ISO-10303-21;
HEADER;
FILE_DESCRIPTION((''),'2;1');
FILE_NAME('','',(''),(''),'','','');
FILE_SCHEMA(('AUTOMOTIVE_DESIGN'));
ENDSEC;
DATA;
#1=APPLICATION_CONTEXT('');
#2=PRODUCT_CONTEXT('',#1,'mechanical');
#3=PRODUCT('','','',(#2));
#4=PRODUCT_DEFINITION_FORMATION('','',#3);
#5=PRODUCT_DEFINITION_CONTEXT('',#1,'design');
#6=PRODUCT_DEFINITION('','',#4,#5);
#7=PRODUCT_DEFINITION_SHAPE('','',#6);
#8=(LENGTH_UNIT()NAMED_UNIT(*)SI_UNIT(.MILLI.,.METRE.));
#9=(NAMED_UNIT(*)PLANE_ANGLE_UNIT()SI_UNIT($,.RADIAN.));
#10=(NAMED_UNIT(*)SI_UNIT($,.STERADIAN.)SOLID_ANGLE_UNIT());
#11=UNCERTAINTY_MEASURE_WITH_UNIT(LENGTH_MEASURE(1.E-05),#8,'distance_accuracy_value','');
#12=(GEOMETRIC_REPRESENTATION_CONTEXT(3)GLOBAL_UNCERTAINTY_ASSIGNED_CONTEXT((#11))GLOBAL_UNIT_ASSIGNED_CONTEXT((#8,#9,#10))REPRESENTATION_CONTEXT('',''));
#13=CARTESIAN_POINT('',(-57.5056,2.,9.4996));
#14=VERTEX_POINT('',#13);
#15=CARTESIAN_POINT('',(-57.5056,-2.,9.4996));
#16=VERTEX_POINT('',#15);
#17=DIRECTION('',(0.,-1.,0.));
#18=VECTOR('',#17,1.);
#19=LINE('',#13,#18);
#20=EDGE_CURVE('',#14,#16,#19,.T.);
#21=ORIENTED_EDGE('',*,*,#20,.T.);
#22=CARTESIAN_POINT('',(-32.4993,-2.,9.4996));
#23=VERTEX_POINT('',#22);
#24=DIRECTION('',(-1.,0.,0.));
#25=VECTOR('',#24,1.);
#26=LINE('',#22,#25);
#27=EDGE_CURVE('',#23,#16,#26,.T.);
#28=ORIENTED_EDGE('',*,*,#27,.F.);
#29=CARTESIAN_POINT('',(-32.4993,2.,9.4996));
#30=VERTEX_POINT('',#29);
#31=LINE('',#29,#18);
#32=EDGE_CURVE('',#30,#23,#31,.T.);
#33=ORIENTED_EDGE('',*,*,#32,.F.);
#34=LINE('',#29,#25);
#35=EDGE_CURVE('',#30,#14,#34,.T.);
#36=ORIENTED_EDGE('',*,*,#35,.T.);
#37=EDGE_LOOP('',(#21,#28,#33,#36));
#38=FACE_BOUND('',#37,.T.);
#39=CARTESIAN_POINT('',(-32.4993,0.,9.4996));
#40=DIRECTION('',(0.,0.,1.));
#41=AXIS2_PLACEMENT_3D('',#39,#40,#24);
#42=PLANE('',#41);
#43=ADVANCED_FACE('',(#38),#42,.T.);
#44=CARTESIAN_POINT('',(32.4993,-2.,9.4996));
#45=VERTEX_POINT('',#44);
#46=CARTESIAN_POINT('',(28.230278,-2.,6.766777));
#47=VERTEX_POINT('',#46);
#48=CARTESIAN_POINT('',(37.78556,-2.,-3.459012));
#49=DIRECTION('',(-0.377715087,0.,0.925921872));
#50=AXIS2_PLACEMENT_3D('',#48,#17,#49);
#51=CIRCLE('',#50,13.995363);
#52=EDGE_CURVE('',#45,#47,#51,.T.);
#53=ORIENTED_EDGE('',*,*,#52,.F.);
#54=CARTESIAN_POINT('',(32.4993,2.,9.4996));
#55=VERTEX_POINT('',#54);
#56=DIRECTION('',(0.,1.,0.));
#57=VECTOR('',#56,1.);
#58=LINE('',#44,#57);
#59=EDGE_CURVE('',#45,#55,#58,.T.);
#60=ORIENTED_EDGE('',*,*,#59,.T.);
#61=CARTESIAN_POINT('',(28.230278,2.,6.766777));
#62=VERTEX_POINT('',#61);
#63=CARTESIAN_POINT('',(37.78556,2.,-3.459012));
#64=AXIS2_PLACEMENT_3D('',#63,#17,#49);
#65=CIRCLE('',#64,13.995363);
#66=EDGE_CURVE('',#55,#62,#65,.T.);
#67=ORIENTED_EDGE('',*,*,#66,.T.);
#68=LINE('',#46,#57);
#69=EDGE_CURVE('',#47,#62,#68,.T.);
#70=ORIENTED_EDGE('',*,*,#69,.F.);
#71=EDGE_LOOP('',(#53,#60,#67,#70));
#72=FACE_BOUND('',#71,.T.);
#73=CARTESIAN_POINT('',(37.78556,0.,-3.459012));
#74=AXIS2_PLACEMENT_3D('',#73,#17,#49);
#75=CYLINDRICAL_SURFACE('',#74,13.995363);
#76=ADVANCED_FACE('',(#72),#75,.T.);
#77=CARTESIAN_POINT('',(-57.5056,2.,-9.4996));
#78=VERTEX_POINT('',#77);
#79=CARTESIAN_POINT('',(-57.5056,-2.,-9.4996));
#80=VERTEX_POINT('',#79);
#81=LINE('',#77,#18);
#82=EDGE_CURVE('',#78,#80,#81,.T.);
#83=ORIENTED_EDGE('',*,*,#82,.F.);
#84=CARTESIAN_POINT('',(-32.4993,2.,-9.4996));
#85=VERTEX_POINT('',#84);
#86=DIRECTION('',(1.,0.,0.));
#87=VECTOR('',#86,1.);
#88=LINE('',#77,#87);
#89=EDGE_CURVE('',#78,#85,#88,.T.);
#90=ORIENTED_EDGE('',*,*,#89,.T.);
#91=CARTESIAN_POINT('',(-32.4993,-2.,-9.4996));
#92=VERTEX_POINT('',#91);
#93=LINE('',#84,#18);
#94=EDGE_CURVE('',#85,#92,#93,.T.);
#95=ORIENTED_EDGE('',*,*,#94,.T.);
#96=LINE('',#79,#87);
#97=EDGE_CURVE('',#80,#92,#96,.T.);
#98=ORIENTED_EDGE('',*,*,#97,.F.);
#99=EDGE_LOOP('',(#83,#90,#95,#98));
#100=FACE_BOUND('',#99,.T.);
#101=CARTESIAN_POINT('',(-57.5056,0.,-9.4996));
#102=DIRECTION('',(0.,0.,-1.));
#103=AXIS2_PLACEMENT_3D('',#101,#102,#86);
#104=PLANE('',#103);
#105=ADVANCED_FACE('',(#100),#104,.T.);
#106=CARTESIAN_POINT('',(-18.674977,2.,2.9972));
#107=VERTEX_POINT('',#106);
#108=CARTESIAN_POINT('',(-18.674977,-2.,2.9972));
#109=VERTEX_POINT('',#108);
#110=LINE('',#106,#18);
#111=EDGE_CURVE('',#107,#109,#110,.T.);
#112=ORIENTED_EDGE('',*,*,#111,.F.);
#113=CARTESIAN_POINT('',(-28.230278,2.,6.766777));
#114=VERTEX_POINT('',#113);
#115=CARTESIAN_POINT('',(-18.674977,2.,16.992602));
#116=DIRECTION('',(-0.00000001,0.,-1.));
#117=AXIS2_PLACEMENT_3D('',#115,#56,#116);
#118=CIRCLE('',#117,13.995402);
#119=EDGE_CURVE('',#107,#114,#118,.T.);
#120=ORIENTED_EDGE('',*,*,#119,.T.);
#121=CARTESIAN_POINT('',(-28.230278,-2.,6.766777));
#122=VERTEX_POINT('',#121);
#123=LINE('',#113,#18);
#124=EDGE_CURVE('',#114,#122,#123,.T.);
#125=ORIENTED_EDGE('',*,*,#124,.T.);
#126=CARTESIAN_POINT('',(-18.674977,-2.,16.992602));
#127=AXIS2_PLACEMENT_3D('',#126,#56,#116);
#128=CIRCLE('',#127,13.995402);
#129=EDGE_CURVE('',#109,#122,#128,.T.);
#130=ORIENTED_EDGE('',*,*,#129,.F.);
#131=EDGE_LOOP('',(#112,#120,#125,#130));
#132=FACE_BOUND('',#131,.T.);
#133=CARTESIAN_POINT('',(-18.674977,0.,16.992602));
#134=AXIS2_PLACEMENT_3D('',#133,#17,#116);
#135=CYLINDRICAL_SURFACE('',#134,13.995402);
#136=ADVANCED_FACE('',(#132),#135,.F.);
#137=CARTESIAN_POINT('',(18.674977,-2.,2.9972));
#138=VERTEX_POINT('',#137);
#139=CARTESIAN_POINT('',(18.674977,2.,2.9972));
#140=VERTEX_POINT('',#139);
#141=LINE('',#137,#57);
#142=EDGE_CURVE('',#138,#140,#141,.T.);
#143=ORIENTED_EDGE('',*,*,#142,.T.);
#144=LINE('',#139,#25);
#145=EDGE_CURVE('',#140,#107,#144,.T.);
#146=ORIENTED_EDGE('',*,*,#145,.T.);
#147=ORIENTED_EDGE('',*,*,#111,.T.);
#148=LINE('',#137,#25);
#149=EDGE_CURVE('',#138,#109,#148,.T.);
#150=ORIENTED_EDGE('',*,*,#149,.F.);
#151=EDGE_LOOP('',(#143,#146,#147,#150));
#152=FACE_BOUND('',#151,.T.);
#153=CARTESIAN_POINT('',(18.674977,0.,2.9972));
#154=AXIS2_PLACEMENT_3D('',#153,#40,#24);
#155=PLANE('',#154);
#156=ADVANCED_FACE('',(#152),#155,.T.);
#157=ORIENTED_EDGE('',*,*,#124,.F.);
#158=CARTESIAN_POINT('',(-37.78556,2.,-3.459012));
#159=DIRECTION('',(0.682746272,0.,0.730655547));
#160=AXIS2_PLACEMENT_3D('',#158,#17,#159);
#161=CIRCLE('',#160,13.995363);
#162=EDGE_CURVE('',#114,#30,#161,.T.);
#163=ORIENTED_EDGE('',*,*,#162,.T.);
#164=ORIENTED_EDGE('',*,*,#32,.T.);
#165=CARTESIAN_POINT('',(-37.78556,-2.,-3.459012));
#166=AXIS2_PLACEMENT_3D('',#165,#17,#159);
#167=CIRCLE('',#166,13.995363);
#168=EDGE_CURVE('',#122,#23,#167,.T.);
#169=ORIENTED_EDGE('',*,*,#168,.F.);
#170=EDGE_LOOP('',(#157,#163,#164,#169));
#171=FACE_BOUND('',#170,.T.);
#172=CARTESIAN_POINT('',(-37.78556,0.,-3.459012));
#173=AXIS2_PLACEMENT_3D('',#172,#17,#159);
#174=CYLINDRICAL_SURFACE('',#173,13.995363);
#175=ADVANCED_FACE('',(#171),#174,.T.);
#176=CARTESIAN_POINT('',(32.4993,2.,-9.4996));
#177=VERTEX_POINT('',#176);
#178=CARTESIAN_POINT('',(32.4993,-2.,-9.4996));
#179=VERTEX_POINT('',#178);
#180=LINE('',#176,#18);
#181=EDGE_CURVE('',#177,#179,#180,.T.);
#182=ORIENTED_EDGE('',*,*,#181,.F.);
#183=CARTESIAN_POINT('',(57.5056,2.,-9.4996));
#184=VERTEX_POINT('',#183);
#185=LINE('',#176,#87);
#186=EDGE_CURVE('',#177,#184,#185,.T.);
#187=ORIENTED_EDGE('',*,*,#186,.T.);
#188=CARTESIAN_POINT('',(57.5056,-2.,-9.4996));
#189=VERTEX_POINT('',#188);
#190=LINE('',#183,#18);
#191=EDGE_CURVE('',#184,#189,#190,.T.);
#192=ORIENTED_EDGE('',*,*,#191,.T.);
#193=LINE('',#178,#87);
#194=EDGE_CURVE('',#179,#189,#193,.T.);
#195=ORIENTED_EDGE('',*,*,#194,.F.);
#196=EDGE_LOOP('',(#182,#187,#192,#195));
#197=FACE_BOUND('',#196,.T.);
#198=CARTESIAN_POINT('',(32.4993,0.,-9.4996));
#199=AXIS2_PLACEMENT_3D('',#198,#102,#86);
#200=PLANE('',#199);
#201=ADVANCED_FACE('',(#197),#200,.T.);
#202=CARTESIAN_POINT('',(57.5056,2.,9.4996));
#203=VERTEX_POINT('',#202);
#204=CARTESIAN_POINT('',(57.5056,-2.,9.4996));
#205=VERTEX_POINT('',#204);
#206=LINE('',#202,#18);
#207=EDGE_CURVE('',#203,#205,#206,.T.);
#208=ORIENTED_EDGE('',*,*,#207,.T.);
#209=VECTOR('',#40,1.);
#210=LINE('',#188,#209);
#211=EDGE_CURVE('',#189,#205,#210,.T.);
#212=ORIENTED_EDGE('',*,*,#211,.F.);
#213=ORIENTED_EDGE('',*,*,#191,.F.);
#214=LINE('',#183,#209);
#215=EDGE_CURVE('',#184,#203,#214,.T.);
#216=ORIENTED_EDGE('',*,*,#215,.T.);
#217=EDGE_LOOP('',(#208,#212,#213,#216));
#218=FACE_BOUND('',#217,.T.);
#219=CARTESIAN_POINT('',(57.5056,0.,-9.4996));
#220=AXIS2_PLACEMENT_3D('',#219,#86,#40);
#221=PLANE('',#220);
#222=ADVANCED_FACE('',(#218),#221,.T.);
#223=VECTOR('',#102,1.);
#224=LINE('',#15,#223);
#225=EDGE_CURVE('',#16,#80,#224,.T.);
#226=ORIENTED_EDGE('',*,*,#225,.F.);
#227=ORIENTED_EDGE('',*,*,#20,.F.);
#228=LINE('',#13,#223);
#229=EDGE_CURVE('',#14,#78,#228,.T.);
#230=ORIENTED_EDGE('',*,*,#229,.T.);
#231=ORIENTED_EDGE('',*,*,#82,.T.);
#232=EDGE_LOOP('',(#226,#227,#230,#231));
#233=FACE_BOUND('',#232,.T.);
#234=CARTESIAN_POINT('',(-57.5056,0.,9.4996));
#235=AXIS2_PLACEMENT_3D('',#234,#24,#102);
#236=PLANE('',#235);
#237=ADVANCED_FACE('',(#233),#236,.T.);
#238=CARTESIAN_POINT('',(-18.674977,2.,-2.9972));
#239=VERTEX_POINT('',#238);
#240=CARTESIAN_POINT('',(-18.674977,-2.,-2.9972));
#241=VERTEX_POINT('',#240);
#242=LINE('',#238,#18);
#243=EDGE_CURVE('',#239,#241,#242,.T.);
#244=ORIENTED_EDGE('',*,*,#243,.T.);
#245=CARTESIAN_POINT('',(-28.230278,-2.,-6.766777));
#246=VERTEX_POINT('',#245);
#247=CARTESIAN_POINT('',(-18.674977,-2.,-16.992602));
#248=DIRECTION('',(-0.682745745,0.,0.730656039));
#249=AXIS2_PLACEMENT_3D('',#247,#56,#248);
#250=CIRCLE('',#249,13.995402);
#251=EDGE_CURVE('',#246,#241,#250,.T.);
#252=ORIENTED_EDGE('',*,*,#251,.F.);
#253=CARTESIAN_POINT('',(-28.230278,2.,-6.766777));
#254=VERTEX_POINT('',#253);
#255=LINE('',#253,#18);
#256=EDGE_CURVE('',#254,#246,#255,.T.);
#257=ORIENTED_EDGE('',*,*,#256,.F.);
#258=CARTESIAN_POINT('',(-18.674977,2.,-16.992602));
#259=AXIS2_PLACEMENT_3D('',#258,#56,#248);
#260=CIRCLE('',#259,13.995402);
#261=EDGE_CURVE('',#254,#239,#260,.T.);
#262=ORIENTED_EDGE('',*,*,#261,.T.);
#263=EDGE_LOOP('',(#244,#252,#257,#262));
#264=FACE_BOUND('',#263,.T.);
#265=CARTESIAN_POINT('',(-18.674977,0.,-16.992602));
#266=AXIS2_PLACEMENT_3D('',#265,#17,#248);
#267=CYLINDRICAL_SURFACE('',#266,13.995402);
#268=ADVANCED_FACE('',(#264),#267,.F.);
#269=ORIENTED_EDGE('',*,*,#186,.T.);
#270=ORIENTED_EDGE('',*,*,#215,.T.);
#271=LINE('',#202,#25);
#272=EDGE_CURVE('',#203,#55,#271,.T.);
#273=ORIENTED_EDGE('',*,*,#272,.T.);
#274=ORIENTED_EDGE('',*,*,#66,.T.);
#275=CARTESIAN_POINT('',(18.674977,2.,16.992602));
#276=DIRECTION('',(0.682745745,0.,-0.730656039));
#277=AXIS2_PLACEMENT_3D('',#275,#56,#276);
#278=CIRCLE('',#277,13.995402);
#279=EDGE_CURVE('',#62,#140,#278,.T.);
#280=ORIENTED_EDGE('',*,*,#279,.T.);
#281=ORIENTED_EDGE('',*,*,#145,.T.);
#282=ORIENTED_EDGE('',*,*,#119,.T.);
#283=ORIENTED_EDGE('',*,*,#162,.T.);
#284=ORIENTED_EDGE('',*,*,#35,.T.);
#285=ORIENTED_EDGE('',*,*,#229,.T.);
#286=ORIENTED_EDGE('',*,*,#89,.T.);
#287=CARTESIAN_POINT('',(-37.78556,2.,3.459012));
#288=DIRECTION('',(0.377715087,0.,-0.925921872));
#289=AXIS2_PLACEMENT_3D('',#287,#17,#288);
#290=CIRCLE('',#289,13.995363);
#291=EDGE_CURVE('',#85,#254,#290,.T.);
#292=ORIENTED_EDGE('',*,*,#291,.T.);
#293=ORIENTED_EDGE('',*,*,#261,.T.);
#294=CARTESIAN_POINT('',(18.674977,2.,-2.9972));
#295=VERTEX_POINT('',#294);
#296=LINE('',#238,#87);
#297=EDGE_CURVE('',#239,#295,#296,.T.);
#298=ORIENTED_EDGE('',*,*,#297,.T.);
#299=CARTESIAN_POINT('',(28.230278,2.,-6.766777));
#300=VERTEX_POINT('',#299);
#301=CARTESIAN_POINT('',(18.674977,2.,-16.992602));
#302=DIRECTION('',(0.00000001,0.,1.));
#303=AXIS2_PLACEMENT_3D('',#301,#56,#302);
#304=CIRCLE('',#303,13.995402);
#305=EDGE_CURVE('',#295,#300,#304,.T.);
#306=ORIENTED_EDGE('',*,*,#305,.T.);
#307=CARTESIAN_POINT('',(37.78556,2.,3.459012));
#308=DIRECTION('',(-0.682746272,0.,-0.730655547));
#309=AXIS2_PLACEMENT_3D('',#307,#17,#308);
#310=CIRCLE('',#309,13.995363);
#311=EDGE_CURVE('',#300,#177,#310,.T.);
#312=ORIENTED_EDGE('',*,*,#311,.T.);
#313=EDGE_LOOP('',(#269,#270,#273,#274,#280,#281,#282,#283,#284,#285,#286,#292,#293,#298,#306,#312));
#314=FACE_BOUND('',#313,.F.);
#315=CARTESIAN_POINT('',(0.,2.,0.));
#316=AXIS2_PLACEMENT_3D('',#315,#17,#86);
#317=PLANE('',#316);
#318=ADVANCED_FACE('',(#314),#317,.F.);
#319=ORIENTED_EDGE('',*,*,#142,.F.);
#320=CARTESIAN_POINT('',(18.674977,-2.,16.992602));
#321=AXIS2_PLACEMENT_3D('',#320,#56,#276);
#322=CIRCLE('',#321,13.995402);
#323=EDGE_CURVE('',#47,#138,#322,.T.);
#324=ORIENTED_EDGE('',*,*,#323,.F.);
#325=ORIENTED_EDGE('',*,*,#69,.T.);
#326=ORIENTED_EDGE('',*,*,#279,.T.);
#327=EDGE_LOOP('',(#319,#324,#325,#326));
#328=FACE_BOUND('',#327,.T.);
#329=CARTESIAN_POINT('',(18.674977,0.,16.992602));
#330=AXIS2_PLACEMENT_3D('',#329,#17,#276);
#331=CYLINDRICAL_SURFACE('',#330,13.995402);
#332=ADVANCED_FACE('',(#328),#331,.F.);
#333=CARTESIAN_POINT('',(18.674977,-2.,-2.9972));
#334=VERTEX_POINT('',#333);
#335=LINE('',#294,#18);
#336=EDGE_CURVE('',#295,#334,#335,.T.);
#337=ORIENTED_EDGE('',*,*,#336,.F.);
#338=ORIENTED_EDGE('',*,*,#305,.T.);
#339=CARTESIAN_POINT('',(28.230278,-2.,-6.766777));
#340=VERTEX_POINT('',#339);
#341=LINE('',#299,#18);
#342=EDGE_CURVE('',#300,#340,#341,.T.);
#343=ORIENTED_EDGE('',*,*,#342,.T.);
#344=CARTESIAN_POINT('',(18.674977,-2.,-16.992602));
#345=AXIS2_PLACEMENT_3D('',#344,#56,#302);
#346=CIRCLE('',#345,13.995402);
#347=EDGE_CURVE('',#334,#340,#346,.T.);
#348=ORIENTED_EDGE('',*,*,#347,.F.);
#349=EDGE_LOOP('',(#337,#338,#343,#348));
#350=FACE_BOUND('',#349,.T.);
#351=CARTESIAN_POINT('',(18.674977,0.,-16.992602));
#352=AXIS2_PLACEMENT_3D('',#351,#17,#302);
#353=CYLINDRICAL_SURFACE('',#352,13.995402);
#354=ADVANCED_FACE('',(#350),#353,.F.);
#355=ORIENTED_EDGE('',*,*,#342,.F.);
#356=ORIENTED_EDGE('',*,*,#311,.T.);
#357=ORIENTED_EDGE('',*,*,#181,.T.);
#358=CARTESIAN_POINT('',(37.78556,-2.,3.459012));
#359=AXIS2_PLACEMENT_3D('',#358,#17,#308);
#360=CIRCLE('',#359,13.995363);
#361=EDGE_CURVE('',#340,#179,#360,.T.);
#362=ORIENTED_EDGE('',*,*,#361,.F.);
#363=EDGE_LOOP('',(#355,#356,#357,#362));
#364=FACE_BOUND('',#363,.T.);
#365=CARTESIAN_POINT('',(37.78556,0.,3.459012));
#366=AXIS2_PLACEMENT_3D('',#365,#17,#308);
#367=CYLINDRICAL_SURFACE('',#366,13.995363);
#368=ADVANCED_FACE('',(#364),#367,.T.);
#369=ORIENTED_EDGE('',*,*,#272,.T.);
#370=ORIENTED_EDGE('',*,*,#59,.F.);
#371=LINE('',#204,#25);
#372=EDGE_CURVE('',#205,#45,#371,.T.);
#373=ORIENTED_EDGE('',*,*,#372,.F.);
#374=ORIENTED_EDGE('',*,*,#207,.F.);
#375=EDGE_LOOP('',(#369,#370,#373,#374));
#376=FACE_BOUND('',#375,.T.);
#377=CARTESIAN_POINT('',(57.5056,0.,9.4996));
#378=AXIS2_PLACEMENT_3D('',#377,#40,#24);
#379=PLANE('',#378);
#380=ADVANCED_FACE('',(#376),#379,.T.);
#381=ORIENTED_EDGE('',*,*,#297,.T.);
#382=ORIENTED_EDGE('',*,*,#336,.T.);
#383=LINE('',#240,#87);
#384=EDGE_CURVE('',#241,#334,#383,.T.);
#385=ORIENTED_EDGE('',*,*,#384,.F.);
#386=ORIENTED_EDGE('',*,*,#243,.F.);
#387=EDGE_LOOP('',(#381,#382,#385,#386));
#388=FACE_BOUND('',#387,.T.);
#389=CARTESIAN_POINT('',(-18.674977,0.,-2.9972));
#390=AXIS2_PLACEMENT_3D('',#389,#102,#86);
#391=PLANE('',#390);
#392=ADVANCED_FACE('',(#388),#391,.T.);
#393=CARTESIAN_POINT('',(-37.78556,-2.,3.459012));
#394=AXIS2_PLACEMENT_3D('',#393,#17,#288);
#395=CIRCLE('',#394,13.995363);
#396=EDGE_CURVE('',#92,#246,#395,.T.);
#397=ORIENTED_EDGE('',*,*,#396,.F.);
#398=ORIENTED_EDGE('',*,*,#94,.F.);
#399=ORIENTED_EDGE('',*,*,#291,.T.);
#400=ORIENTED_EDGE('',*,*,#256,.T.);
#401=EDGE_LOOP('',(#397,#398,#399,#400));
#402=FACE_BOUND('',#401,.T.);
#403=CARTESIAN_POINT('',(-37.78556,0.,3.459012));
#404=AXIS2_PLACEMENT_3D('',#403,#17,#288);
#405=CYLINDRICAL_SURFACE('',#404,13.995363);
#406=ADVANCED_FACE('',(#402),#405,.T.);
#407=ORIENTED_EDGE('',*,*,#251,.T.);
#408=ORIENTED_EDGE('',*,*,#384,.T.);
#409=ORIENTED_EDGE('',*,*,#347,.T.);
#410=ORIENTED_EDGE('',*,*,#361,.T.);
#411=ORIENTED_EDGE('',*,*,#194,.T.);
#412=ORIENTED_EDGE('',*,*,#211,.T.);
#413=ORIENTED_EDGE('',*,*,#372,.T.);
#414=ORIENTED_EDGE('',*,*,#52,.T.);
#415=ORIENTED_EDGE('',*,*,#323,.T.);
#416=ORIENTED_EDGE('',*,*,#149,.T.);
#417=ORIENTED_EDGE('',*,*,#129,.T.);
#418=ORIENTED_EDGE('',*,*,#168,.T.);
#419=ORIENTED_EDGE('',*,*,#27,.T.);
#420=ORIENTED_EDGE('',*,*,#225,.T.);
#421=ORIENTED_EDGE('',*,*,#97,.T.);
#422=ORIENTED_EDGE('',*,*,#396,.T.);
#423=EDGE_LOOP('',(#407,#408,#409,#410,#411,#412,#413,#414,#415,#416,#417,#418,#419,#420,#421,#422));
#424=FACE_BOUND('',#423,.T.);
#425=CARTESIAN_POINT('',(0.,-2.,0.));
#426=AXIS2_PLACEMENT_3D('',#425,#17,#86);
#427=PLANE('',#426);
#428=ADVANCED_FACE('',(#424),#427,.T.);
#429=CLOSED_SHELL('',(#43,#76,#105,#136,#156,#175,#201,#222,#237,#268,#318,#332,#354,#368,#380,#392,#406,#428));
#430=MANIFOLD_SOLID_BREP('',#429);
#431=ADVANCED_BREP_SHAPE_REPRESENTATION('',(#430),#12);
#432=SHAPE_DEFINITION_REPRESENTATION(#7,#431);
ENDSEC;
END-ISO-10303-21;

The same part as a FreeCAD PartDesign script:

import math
import FreeCAD as App
import Part
import Sketcher
Q = App.Units.Quantity

doc = App.newDocument("Part")
body = doc.addObject("PartDesign::Body", "Body")

sketch1 = body.newObject("Sketcher::SketchObject", "Sketch")
sketch1.AttachmentSupport = (doc.getObject("XZ_Plane"), [""])
sketch1.MapMode = "FlatFace"
sketch1.addGeometry([
    Part.LineSegment(App.Vector(18.674977, 2.9972, 0), App.Vector(-18.674977, 2.9972, 0)),
    Part.ArcOfCircle(Part.Circle(App.Vector(-18.674977, 16.992602, 0), App.Vector(0, 0, 1), 13.995402), math.radians(-133.05858), math.radians(-90.000001)),
    Part.ArcOfCircle(Part.Circle(App.Vector(-37.78556, -3.459012, 0), App.Vector(0, 0, 1), 13.995363), math.radians(46.941379), math.radians(67.807778)),
    Part.LineSegment(App.Vector(-32.4993, 9.4996, 0), App.Vector(-57.5056, 9.4996, 0)),
    Part.LineSegment(App.Vector(-57.5056, 9.4996, 0), App.Vector(-57.5056, -9.4996, 0)),
    Part.LineSegment(App.Vector(-57.5056, -9.4996, 0), App.Vector(-32.4993, -9.4996, 0)),
    Part.ArcOfCircle(Part.Circle(App.Vector(-37.78556, 3.459012, 0), App.Vector(0, 0, 1), 13.995363), math.radians(-67.807778), math.radians(-46.941379)),
    Part.ArcOfCircle(Part.Circle(App.Vector(-18.674977, -16.992602, 0), App.Vector(0, 0, 1), 13.995402), math.radians(90.000001), math.radians(133.05858)),
    Part.LineSegment(App.Vector(-18.674977, -2.9972, 0), App.Vector(18.674977, -2.9972, 0)),
    Part.ArcOfCircle(Part.Circle(App.Vector(18.674977, -16.992602, 0), App.Vector(0, 0, 1), 13.995402), math.radians(46.94142), math.radians(89.999999)),
    Part.ArcOfCircle(Part.Circle(App.Vector(37.78556, 3.459012, 0), App.Vector(0, 0, 1), 13.995363), math.radians(-133.058621), math.radians(-112.192222)),
    Part.LineSegment(App.Vector(32.4993, -9.4996, 0), App.Vector(57.5056, -9.4996, 0)),
    Part.LineSegment(App.Vector(57.5056, -9.4996, 0), App.Vector(57.5056, 9.4996, 0)),
    Part.LineSegment(App.Vector(57.5056, 9.4996, 0), App.Vector(32.4993, 9.4996, 0)),
    Part.ArcOfCircle(Part.Circle(App.Vector(37.78556, -3.459012, 0), App.Vector(0, 0, 1), 13.995363), math.radians(112.192222), math.radians(133.058621)),
    Part.ArcOfCircle(Part.Circle(App.Vector(18.674977, 16.992602, 0), App.Vector(0, 0, 1), 13.995402), math.radians(-89.999999), math.radians(-46.94142)),
], False)
sketch1.addConstraint([
    Sketcher.Constraint("Coincident", 0, 2, 1, 2),
    Sketcher.Constraint("Coincident", 1, 1, 2, 1),
    Sketcher.Constraint("Coincident", 2, 2, 3, 1),
    Sketcher.Constraint("Coincident", 3, 2, 4, 1),
    Sketcher.Constraint("Coincident", 4, 2, 5, 1),
    Sketcher.Constraint("Coincident", 5, 2, 6, 1),
    Sketcher.Constraint("Coincident", 6, 2, 7, 2),
    Sketcher.Constraint("Coincident", 7, 1, 8, 1),
    Sketcher.Constraint("Coincident", 8, 2, 9, 2),
    Sketcher.Constraint("Coincident", 9, 1, 10, 1),
    Sketcher.Constraint("Coincident", 10, 2, 11, 1),
    Sketcher.Constraint("Coincident", 11, 2, 12, 1),
    Sketcher.Constraint("Coincident", 12, 2, 13, 1),
    Sketcher.Constraint("Coincident", 13, 2, 14, 1),
    Sketcher.Constraint("Coincident", 14, 2, 15, 2),
    Sketcher.Constraint("Coincident", 15, 1, 0, 1),
    Sketcher.Constraint("Horizontal", 0),
    Sketcher.Constraint("Horizontal", 3),
    Sketcher.Constraint("Vertical", 4),
    Sketcher.Constraint("Horizontal", 5),
    Sketcher.Constraint("Horizontal", 8),
    Sketcher.Constraint("Horizontal", 11),
    Sketcher.Constraint("Vertical", 12),
    Sketcher.Constraint("Horizontal", 13),
    Sketcher.Constraint("Radius", 1, Q("0.5510001 in")),
    Sketcher.Constraint("Radius", 7, Q("0.5510001 in")),
    Sketcher.Constraint("Radius", 9, Q("0.5510001 in")),
    Sketcher.Constraint("Radius", 15, Q("0.5510001 in")),
    Sketcher.Constraint("DistanceY", 4, 2, 4, 1, Q("0.748 in")),
    Sketcher.Constraint("DistanceY", 12, 1, 12, 2, Q("0.748 in")),
    Sketcher.Constraint("DistanceX", 3, 2, 3, 1, Q("0.9845 in")),
    Sketcher.Constraint("DistanceX", 5, 1, 5, 2, Q("0.9845 in")),
    Sketcher.Constraint("DistanceX", 11, 1, 11, 2, Q("0.9845 in")),
    Sketcher.Constraint("DistanceX", 13, 2, 13, 1, Q("0.9845 in")),
    Sketcher.Constraint("DistanceY", -1, 1, 1, 3, Q("0.6690001 in")),
    Sketcher.Constraint("DistanceY", 7, 3, -1, 1, Q("0.6690001 in")),
    Sketcher.Constraint("DistanceY", -1, 1, 2, 2, Q("0.374 in")),
    Sketcher.Constraint("DistanceX", 3, 2, -1, 1, Q("2.264 in")),
    Sketcher.Constraint("DistanceY", 10, 2, -1, 1, Q("0.374 in")),
    Sketcher.Constraint("DistanceX", -1, 1, 11, 2, Q("2.264 in")),
    Sketcher.Constraint("Radius", 2, Q("13.995363 mm")),
    Sketcher.Constraint("Radius", 6, Q("13.995363 mm")),
    Sketcher.Constraint("Radius", 10, Q("13.995363 mm")),
    Sketcher.Constraint("Radius", 14, Q("13.995363 mm")),
    Sketcher.Constraint("DistanceX", 1, 1, 0, 2, Q("9.555301 mm")),
    Sketcher.Constraint("DistanceX", 1, 1, 1, 3, Q("9.555301 mm")),
    Sketcher.Constraint("DistanceX", 1, 1, 7, 3, Q("9.555301 mm")),
    Sketcher.Constraint("DistanceX", 6, 2, 0, 2, Q("9.555301 mm")),
    Sketcher.Constraint("DistanceX", 6, 2, 7, 1, Q("9.555301 mm")),
    Sketcher.Constraint("DistanceX", 8, 2, 9, 1, Q("9.555301 mm")),
    Sketcher.Constraint("DistanceX", 9, 3, 9, 1, Q("9.555301 mm")),
    Sketcher.Constraint("DistanceX", 15, 3, 9, 1, Q("9.555301 mm")),
    Sketcher.Constraint("DistanceX", 8, 2, 14, 2, Q("9.555301 mm")),
    Sketcher.Constraint("DistanceX", 15, 1, 14, 2, Q("9.555301 mm")),
    Sketcher.Constraint("DistanceX", 0, 2, 0, 1, Q("37.349954 mm")),
    Sketcher.Constraint("DistanceX", 2, 3, -1, 1, Q("37.78556 mm")),
])
pad1 = body.newObject("PartDesign::Pad", "Pad")
pad1.Profile = sketch1
pad1.Length = 4
pad1.Midplane = True

doc.recompute()
